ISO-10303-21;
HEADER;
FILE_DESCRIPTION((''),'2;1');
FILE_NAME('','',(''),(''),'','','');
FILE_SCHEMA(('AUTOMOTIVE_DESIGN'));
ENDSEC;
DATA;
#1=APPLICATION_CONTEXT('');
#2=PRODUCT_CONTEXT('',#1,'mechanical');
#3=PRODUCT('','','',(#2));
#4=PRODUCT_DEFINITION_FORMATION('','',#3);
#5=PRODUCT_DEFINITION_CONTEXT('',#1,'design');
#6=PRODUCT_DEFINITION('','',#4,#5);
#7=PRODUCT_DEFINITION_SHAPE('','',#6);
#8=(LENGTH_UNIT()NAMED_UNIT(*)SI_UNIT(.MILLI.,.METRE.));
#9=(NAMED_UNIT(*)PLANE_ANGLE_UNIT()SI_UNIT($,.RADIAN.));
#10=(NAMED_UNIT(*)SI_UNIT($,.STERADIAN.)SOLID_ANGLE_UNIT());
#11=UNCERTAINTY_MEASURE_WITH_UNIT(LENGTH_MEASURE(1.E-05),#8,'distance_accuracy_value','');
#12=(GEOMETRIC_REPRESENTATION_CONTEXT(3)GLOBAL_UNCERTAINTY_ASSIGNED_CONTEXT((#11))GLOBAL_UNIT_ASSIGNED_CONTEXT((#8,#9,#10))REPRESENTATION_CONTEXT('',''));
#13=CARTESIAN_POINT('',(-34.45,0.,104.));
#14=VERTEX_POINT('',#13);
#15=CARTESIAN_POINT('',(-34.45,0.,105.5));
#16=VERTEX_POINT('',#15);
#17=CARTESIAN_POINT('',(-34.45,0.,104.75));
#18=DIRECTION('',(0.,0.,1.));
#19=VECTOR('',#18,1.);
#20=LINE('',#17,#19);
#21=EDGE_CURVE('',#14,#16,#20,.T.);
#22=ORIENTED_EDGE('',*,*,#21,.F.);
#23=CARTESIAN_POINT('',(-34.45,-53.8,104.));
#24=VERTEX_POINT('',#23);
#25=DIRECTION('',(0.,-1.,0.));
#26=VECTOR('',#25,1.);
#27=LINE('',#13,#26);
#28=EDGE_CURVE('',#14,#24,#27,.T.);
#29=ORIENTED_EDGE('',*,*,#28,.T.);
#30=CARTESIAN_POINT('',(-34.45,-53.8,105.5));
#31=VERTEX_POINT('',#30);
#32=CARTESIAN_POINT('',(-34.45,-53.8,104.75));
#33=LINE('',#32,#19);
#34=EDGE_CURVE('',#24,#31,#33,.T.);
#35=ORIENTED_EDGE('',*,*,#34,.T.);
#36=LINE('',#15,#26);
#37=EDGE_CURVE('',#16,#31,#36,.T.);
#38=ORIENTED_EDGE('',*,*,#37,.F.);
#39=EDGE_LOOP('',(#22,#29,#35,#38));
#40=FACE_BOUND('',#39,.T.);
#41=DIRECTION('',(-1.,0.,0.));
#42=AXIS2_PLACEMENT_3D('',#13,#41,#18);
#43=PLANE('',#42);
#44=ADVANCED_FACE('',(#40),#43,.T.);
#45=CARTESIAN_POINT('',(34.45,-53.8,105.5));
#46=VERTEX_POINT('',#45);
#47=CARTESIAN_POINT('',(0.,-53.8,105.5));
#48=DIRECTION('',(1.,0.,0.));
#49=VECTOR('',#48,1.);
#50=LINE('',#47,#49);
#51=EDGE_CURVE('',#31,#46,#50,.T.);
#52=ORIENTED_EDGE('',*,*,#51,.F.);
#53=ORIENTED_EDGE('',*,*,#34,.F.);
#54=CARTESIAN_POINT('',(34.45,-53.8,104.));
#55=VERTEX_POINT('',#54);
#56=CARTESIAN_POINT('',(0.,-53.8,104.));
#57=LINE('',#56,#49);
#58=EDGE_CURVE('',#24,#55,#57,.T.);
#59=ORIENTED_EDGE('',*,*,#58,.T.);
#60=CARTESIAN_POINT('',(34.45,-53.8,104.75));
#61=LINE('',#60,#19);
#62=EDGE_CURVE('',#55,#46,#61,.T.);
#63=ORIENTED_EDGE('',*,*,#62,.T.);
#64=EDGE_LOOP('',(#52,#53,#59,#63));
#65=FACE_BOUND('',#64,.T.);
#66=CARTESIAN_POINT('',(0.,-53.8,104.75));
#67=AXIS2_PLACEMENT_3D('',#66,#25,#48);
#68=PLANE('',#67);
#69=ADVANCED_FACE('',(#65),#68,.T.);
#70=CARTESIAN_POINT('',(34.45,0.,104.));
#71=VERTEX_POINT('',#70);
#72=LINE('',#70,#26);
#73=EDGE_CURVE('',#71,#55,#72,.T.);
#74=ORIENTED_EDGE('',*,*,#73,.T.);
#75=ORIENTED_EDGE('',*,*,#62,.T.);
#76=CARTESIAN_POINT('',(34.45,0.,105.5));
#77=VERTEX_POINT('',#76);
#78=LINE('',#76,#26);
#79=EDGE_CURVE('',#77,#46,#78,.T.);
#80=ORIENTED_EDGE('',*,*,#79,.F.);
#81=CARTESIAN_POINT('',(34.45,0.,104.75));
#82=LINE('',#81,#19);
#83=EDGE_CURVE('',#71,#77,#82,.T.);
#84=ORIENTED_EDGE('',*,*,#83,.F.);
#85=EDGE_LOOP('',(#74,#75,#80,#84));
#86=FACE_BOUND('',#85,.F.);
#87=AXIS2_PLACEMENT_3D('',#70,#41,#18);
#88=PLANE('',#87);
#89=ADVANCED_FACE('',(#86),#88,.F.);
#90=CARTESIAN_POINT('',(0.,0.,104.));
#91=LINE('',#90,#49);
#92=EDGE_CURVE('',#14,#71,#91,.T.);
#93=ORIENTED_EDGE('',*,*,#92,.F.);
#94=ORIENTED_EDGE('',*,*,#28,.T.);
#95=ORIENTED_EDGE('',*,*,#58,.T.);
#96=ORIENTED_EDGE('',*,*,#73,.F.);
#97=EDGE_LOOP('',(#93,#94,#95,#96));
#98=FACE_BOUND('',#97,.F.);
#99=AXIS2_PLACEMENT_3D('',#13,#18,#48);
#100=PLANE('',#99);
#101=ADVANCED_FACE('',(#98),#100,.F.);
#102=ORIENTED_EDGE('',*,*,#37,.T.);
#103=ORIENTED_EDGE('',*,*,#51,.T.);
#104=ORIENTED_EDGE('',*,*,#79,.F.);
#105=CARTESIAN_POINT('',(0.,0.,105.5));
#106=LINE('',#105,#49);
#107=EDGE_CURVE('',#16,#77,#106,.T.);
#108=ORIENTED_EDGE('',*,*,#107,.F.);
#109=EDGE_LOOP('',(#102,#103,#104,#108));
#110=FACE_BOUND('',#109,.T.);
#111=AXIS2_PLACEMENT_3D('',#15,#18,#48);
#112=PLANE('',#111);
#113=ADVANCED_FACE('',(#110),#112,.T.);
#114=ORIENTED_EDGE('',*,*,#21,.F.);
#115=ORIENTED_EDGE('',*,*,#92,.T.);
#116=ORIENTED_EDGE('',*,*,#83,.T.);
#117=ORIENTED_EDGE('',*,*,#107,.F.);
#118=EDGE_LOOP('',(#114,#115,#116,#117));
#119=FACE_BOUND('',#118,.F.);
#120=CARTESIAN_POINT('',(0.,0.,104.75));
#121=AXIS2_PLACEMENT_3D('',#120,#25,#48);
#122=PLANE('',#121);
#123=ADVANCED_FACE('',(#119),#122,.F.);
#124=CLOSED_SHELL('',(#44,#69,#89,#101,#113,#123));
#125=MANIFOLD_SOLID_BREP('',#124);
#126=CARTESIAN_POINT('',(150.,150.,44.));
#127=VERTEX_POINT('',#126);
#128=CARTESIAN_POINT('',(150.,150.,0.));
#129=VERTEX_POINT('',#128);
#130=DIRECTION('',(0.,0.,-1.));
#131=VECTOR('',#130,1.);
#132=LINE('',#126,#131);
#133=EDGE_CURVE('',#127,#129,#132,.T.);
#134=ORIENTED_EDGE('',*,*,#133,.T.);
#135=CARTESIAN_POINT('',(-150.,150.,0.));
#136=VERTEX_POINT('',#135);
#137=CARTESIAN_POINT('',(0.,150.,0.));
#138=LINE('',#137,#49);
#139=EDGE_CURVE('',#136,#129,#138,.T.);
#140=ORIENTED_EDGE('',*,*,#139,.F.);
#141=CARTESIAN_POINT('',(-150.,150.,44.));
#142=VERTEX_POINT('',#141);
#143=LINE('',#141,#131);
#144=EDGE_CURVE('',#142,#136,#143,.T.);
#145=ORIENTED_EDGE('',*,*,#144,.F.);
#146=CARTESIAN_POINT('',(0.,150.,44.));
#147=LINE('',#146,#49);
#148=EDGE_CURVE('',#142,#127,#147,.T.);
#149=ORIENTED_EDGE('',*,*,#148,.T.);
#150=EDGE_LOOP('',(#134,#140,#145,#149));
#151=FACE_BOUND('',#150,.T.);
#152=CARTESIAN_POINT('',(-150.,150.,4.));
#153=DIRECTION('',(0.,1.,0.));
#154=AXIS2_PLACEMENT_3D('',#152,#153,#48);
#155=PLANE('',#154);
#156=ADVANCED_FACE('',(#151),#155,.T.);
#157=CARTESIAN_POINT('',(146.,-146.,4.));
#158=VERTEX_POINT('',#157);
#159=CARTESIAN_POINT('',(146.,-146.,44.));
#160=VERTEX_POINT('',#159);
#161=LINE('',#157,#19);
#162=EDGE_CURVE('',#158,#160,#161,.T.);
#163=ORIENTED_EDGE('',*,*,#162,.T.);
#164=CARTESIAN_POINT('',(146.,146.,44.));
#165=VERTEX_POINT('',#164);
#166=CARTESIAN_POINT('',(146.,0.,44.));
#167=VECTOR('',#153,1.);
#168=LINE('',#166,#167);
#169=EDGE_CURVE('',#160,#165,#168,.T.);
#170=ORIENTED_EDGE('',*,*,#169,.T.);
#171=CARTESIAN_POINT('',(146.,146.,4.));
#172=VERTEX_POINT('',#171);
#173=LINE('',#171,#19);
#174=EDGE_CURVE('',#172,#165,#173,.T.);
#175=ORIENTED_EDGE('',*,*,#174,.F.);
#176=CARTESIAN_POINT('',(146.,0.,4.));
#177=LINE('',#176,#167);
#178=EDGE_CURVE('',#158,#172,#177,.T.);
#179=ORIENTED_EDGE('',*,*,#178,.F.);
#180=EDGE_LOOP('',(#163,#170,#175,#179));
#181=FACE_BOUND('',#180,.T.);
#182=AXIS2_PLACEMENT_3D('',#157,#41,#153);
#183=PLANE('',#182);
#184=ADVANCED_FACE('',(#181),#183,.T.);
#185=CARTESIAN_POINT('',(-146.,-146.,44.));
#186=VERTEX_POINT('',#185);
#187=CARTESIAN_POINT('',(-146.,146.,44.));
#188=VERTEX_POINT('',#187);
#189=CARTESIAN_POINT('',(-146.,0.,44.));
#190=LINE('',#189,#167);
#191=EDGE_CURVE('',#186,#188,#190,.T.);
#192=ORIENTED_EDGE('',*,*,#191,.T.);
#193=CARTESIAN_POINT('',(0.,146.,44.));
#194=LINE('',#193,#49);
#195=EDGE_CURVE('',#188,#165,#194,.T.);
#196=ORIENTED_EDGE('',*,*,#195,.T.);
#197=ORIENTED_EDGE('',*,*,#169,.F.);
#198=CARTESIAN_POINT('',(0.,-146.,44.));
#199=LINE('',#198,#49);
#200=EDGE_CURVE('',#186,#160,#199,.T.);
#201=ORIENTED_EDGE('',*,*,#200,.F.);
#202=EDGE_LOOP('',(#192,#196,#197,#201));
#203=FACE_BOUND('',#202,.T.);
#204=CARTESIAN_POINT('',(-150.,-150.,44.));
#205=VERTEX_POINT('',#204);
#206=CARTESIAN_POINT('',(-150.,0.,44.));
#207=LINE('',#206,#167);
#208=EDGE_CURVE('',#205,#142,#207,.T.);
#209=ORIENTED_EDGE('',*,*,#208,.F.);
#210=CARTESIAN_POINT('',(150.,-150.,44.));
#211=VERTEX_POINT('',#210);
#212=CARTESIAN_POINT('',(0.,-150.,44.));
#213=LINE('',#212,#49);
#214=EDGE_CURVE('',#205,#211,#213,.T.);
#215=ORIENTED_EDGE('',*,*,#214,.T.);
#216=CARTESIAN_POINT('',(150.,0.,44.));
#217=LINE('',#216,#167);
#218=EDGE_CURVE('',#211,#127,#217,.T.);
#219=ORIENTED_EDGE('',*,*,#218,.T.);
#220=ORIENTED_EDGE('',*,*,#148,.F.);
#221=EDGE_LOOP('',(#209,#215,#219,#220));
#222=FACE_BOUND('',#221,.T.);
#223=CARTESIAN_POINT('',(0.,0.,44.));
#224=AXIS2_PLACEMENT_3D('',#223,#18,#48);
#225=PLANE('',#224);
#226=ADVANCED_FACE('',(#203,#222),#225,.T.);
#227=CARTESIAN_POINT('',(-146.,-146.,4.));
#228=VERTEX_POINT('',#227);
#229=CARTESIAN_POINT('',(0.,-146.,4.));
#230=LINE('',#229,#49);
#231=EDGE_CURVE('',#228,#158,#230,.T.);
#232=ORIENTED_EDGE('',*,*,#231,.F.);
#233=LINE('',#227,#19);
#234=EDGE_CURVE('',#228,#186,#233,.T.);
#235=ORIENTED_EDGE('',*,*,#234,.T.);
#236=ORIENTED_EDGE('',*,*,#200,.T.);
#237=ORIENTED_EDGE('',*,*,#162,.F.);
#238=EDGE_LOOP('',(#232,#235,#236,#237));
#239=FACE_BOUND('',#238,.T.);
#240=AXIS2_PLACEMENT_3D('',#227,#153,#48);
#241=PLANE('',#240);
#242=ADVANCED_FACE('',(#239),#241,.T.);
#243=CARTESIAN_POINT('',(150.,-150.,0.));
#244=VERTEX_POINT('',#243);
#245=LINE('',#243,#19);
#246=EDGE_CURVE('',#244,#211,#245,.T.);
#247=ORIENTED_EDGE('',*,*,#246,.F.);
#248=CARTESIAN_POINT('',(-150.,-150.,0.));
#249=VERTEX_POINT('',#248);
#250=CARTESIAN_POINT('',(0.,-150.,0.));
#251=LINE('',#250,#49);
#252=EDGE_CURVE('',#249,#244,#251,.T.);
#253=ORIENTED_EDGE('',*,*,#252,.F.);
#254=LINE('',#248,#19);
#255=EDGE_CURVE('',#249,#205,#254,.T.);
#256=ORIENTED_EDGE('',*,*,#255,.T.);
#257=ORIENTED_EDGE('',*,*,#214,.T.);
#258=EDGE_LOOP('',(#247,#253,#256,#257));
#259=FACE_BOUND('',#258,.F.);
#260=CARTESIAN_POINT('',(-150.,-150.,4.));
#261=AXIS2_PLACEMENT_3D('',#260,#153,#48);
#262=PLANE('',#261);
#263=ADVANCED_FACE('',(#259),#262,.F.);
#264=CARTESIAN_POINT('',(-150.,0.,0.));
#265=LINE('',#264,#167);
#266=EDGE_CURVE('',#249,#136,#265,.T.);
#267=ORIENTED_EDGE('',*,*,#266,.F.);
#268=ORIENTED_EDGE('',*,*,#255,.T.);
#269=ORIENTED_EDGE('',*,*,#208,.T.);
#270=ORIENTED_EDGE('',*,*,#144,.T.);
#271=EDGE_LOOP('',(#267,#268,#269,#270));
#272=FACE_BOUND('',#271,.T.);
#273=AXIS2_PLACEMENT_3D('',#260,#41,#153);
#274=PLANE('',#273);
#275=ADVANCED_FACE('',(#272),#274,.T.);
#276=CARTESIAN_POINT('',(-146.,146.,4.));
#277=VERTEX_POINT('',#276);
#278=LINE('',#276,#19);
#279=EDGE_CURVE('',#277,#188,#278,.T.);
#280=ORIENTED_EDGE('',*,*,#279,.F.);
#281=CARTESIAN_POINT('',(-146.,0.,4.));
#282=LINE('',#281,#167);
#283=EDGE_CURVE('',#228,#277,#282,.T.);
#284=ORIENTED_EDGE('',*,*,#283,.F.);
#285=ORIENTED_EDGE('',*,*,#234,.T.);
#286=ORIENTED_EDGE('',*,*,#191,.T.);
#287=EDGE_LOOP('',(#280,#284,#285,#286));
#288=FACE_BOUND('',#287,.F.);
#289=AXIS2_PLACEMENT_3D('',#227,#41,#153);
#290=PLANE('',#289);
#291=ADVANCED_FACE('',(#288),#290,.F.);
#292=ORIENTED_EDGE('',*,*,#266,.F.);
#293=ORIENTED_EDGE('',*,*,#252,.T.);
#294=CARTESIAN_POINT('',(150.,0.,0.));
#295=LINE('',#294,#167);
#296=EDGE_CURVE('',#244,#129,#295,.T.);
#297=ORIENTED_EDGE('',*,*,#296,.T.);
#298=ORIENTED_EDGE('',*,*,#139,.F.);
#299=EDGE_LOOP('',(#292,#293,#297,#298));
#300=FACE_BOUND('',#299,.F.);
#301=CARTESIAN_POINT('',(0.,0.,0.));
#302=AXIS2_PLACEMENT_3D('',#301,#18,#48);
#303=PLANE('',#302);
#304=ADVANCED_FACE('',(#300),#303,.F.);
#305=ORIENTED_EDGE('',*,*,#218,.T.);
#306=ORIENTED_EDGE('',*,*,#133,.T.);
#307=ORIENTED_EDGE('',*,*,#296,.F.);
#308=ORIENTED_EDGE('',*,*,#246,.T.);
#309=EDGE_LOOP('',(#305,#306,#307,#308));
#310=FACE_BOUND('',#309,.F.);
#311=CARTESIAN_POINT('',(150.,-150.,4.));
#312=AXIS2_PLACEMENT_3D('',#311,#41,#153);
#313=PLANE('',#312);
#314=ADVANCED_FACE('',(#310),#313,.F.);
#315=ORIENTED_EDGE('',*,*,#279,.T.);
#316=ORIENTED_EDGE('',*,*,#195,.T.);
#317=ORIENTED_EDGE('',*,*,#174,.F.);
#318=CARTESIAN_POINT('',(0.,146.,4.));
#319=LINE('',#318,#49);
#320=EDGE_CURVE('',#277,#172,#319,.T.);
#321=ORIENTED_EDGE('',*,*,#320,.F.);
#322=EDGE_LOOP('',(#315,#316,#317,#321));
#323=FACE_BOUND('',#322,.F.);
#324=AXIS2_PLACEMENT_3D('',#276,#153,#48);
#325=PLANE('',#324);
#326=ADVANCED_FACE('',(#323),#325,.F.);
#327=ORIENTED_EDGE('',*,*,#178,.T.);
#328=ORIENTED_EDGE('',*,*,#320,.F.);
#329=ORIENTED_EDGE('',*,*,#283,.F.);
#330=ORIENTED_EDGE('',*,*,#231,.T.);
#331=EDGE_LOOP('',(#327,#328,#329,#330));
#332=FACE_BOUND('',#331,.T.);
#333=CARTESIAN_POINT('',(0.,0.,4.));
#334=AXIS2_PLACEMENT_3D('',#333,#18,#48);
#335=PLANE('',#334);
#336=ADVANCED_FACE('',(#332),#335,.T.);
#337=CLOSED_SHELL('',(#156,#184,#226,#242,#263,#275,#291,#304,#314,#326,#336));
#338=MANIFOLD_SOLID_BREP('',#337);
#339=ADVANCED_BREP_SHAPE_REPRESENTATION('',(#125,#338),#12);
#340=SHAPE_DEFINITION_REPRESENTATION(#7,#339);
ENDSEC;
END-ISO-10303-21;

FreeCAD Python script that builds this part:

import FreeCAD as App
import Part
import Sketcher
from FreeCAD import Vector
Q = App.Units.Quantity

doc = App.newDocument("Part")
body = doc.addObject("PartDesign::Body", "Body")

# Sketch on XY plane
sketch1 = body.newObject("Sketcher::SketchObject", "Sketch")
sketch1.AttachmentSupport = (doc.getObject("XY_Plane"), [""])
sketch1.MapMode = "FlatFace"
sketch1.addGeometry([
    Part.LineSegment(Vector(-150, 150, 0), Vector(-150, -150, 0)),
    Part.LineSegment(Vector(-150, -150, 0), Vector(150, -150, 0)),
    Part.LineSegment(Vector(150, -150, 0), Vector(150, 150, 0)),
    Part.LineSegment(Vector(150, 150, 0), Vector(-150, 150, 0)),
], False)
sketch1.addConstraint([
    Sketcher.Constraint("Coincident", 0, 2, 1, 1),
    Sketcher.Constraint("Coincident", 1, 2, 2, 1),
    Sketcher.Constraint("Coincident", 2, 2, 3, 1),
    Sketcher.Constraint("Coincident", 3, 2, 0, 1),
    Sketcher.Constraint("Vertical", 0),
    Sketcher.Constraint("Horizontal", 1),
    Sketcher.Constraint("Vertical", 2),
    Sketcher.Constraint("Horizontal", 3),
    Sketcher.Constraint("Symmetric", 0, 2, 2, 2, -1, 1),
    Sketcher.Constraint("Equal", 3, 0),
    Sketcher.Constraint("DistanceX", 1, 1, 1, 2, Q("300 mm")),
])
pad1 = body.newObject("PartDesign::Pad", "Pad")
pad1.Profile = sketch1
pad1.Length = 4

# Sketch on XY plane
sketch2 = body.newObject("Sketcher::SketchObject", "Sketch001")
sketch2.AttachmentSupport = (doc.getObject("XY_Plane"), [""])
sketch2.MapMode = "FlatFace"
sketch2.AttachmentOffset = App.Placement(Vector(0, 0, 4), App.Rotation())
sketch2.addGeometry([
    Part.LineSegment(Vector(-150, 150, 0), Vector(-150, -150, 0)),  # 0
    Part.LineSegment(Vector(-150, -150, 0), Vector(150, -150, 0)),  # 1
    Part.LineSegment(Vector(150, -150, 0), Vector(150, 150, 0)),  # 2
    Part.LineSegment(Vector(150, 150, 0), Vector(-150, 150, 0)),  # 3
    Part.LineSegment(Vector(146, -146, 0), Vector(-146, -146, 0)),  # 4
    Part.LineSegment(Vector(-146, -146, 0), Vector(-146, 146, 0)),  # 5
    Part.LineSegment(Vector(-146, 146, 0), Vector(146, 146, 0)),  # 6
    Part.LineSegment(Vector(146, 146, 0), Vector(146, -146, 0)),  # 7
], False)
sketch2.addConstraint([
    Sketcher.Constraint("Coincident", 0, 2, 1, 1),
    Sketcher.Constraint("Coincident", 1, 2, 2, 1),
    Sketcher.Constraint("Coincident", 2, 2, 3, 1),
    Sketcher.Constraint("Coincident", 3, 2, 0, 1),
    Sketcher.Constraint("Coincident", 4, 2, 5, 1),
    Sketcher.Constraint("Coincident", 5, 2, 6, 1),
    Sketcher.Constraint("Coincident", 6, 2, 7, 1),
    Sketcher.Constraint("Coincident", 7, 2, 4, 1),
    Sketcher.Constraint("Vertical", 0),
    Sketcher.Constraint("Horizontal", 1),
    Sketcher.Constraint("Vertical", 2),
    Sketcher.Constraint("Horizontal", 3),
    Sketcher.Constraint("Horizontal", 4),
    Sketcher.Constraint("Vertical", 5),
    Sketcher.Constraint("Horizontal", 6),
    Sketcher.Constraint("Vertical", 7),
    Sketcher.Constraint("Symmetric", 0, 2, 2, 2, -1, 1),
    Sketcher.Constraint("Symmetric", 4, 2, 6, 2, -1, 1),
    Sketcher.Constraint("Equal", 3, 0),
    Sketcher.Constraint("Equal", 6, 5),
    Sketcher.Constraint("DistanceX", 1, 1, 1, 2, Q("300 mm")),
    Sketcher.Constraint("DistanceX", 4, 2, 4, 1, Q("292 mm")),
])
pad2 = body.newObject("PartDesign::Pad", "Pad001")
pad2.Profile = sketch2
pad2.Length = 40
body2 = doc.addObject("PartDesign::Body", "Body001")

# Sketch on XZ plane
sketch3 = body2.newObject("Sketcher::SketchObject", "Sketch002")
sketch3.AttachmentSupport = (doc.getObject("XZ_Plane001"), [""])
sketch3.MapMode = "FlatFace"
sketch3.addGeometry([
    Part.LineSegment(Vector(-34.45, 105.5, 0), Vector(-34.45, 104, 0)),
    Part.LineSegment(Vector(-34.45, 104, 0), Vector(34.45, 104, 0)),
    Part.LineSegment(Vector(34.45, 104, 0), Vector(34.45, 105.5, 0)),
    Part.LineSegment(Vector(34.45, 105.5, 0), Vector(-34.45, 105.5, 0)),
], False)
sketch3.addConstraint([
    Sketcher.Constraint("Coincident", 0, 2, 1, 1),
    Sketcher.Constraint("Coincident", 1, 2, 2, 1),
    Sketcher.Constraint("Coincident", 2, 2, 3, 1),
    Sketcher.Constraint("Coincident", 3, 2, 0, 1),
    Sketcher.Constraint("Vertical", 0),
    Sketcher.Constraint("Horizontal", 1),
    Sketcher.Constraint("Vertical", 2),
    Sketcher.Constraint("Horizontal", 3),
    Sketcher.Constraint("DistanceX", 1, 1, 1, 2, Q("68.9 mm")),
    Sketcher.Constraint("DistanceY", 0, 2, 0, 1, Q("1.5 mm")),
    Sketcher.Constraint("DistanceY", -1, 1, 0, 2, Q("104 mm")),
    Sketcher.Constraint("DistanceX", 0, 2, -1, 1, Q("34.45 mm")),
])
pad3 = body2.newObject("PartDesign::Pad", "Pad002")
pad3.Profile = sketch3
pad3.Length = 53.8

doc.recompute()
